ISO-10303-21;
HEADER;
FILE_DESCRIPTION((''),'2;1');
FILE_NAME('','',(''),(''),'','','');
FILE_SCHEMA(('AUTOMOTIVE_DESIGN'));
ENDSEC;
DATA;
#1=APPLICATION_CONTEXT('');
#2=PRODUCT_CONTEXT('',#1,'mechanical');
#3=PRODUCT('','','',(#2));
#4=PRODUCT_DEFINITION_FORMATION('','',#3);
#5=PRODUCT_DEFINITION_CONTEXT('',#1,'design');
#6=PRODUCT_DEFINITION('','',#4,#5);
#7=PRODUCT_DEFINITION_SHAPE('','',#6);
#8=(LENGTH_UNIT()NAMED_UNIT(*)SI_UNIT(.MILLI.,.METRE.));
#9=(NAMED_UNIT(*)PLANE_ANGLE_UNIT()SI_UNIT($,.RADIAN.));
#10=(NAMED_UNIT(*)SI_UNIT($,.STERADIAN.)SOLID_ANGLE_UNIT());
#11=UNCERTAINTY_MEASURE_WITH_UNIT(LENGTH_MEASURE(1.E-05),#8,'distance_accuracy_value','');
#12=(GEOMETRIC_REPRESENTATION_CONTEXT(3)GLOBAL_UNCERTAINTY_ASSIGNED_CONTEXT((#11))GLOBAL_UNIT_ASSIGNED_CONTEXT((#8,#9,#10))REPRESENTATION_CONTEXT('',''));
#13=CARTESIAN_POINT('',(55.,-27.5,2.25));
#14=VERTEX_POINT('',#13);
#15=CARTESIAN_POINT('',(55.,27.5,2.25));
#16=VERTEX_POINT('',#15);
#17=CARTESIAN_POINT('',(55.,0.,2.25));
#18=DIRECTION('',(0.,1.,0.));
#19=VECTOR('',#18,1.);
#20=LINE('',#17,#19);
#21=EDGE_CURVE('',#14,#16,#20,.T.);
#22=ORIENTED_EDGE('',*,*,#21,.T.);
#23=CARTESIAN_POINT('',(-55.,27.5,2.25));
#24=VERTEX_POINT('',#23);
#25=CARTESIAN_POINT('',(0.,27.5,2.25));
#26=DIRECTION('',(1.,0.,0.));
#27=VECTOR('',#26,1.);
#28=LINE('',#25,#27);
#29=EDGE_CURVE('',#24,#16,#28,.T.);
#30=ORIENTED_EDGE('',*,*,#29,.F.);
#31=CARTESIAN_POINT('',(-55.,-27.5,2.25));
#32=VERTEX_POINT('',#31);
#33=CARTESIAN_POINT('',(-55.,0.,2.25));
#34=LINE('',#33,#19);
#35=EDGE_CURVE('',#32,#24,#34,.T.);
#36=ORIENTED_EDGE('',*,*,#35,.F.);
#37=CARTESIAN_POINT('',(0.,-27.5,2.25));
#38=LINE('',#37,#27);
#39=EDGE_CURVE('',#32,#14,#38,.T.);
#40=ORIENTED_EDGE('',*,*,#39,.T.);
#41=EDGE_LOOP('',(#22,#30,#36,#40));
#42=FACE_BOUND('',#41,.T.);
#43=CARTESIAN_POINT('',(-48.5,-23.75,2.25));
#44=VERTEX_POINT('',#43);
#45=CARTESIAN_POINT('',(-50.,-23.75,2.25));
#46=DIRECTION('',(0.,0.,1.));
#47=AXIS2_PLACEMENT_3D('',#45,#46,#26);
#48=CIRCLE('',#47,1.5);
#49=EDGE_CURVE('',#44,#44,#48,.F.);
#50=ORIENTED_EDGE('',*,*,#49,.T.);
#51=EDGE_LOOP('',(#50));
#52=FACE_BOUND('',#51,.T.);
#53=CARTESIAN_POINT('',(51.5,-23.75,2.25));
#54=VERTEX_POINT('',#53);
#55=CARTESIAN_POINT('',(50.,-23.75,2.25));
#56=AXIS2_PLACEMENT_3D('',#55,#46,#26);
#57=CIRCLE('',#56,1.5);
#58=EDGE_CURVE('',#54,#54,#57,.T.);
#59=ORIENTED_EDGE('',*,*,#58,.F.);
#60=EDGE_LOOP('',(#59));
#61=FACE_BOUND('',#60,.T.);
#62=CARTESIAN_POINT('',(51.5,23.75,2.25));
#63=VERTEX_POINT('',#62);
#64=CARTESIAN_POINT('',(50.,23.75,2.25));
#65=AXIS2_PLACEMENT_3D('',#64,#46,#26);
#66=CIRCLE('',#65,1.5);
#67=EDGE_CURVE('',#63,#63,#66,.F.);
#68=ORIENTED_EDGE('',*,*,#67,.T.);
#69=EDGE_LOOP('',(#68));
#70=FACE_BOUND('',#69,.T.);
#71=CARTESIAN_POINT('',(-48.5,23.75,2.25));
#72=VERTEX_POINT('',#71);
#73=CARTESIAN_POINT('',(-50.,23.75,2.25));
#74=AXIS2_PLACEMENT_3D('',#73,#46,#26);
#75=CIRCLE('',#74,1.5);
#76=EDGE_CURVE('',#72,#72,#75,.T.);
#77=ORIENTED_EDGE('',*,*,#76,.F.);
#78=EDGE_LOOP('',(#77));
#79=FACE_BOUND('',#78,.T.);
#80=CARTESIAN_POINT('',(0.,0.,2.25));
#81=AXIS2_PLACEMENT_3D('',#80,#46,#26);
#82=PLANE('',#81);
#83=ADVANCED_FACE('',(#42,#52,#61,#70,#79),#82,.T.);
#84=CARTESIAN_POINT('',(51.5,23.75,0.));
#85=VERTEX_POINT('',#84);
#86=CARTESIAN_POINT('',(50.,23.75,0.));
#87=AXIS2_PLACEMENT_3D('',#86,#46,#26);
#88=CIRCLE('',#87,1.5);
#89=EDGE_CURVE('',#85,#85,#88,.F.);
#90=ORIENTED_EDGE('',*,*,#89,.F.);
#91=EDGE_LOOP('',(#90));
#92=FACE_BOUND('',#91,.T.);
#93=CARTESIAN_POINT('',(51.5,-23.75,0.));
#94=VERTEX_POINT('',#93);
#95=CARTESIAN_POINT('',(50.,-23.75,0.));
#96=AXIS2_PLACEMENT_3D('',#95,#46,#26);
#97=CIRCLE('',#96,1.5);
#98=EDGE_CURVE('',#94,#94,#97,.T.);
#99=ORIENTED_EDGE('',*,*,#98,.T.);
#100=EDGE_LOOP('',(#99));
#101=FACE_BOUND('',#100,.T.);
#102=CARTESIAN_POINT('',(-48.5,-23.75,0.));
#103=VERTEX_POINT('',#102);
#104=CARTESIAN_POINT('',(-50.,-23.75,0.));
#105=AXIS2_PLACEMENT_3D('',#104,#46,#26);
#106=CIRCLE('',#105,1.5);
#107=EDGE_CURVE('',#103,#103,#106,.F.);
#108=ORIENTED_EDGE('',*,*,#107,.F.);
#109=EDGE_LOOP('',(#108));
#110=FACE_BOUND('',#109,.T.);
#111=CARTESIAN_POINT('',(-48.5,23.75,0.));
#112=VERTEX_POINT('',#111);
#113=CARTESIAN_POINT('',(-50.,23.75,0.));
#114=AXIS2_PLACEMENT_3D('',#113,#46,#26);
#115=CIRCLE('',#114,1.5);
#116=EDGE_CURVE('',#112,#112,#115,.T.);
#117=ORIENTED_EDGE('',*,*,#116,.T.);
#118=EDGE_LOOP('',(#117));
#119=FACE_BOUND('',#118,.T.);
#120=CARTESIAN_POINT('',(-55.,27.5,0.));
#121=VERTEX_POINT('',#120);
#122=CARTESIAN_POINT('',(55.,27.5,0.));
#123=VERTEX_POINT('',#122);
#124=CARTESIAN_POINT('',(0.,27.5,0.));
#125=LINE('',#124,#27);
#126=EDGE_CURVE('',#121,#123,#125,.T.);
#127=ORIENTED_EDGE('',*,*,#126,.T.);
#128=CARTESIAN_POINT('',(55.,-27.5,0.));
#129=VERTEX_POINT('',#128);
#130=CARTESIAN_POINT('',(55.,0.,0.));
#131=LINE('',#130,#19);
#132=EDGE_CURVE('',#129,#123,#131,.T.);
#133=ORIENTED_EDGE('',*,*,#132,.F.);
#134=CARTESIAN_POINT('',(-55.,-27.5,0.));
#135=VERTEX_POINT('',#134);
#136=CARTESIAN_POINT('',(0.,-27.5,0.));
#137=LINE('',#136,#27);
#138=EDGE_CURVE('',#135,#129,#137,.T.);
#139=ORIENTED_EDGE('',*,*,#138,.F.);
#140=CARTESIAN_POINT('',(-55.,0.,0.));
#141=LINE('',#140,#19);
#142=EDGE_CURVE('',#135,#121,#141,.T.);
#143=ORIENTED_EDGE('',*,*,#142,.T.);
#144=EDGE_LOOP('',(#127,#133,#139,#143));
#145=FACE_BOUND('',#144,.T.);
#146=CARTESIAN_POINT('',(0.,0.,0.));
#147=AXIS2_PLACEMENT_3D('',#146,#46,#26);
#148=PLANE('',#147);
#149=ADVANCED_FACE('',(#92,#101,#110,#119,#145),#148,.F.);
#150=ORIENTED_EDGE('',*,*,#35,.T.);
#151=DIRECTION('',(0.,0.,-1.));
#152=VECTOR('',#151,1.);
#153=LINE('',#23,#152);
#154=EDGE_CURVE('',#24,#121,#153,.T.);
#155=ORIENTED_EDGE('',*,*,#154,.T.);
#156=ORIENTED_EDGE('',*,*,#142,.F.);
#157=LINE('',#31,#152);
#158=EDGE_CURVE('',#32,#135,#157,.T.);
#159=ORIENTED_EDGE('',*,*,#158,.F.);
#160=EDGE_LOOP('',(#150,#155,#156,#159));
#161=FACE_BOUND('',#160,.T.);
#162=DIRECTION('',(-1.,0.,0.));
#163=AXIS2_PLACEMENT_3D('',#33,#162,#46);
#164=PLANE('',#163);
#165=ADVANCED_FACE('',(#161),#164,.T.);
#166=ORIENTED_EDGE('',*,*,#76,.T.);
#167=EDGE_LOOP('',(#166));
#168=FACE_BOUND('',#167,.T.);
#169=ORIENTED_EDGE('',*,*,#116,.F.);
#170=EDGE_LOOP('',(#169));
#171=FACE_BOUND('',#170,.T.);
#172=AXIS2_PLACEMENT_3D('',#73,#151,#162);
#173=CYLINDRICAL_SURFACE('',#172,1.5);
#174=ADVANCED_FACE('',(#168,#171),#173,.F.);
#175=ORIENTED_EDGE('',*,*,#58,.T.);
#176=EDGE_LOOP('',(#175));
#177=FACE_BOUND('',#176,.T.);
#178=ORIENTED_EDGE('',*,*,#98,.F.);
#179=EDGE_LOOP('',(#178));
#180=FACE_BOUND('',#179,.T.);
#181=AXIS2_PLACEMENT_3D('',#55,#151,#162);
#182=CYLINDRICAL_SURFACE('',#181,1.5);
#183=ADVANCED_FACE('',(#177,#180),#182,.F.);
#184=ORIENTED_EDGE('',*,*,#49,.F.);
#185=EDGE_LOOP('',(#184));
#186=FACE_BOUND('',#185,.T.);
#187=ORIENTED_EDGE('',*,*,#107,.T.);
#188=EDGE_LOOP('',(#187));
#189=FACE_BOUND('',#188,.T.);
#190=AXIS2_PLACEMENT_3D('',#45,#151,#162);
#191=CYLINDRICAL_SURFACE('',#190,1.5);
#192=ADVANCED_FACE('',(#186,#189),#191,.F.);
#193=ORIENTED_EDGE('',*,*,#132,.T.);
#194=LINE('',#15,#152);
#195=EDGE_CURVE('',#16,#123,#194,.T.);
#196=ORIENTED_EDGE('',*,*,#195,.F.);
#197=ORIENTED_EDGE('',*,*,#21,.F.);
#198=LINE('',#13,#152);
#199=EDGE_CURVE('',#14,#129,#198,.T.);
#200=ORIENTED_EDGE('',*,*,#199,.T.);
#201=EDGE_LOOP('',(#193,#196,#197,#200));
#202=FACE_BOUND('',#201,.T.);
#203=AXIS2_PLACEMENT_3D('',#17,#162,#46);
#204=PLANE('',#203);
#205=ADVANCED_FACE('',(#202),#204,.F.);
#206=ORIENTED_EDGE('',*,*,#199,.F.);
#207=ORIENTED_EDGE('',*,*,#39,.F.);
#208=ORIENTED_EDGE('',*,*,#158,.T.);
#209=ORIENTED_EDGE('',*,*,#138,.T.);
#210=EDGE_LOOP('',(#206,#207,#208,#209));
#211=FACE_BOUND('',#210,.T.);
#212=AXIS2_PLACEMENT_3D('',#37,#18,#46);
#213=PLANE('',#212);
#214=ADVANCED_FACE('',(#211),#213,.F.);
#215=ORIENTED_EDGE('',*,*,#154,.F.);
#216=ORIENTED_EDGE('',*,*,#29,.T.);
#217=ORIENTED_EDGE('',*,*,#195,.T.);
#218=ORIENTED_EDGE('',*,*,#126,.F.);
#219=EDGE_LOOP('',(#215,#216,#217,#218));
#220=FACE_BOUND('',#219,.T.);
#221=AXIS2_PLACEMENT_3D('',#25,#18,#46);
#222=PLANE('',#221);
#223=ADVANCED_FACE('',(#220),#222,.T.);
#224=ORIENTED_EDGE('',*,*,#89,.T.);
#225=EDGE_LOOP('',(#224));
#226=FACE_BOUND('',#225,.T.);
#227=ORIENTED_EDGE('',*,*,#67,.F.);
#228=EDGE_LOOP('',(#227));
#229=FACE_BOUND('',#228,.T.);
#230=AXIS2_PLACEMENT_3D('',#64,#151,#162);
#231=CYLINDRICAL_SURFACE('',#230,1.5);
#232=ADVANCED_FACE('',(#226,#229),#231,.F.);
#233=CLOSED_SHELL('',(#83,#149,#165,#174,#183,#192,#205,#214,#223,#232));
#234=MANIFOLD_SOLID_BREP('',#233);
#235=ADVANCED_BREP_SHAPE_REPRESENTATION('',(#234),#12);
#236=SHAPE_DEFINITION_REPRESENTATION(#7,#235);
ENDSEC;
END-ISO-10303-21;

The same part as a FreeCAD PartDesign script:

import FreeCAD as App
import Part
import Sketcher


def add_polygon(sketch, points):
    """Adds a closed chain of lines whose ends are joined by coincident constraints."""
    first, n = sketch.GeometryCount, len(points)
    for a, b in zip(points, points[1:] + points[:1]):
        sketch.addGeometry(Part.LineSegment(App.Vector(*a, 0), App.Vector(*b, 0)), False)
    for i in range(n):
        sketch.addConstraint(Sketcher.Constraint("Coincident", first + i, 2, first + (i + 1) % n, 1))

doc = App.newDocument("Part")
body = doc.addObject("PartDesign::Body", "Body")

# Sketch on XY plane
sketch1 = body.newObject("Sketcher::SketchObject", "Sketch")
sketch1.AttachmentSupport = (doc.getObject("XY_Plane"), [""])
sketch1.MapMode = "FlatFace"
add_polygon(sketch1, [(-55, 27.5), (-55, -27.5), (55, -27.5), (55, 27.5)])  # lines 0-3
sketch1.addGeometry(Part.Circle(App.Vector(-50, -23.8, 0), App.Vector(0, 0, 1), 1.5), False)  # 4
sketch1.addGeometry(Part.Circle(App.Vector(50, -23.8, 0), App.Vector(0, 0, 1), 1.5), False)  # 5
sketch1.addGeometry(Part.Circle(App.Vector(-50, 23.8, 0), App.Vector(0, 0, 1), 1.5), False)  # 6
sketch1.addGeometry(Part.Circle(App.Vector(50, 23.8, 0), App.Vector(0, 0, 1), 1.5), False)  # 7
sketch1.addConstraint([
    Sketcher.Constraint("Vertical", 0),
    Sketcher.Constraint("Horizontal", 1),
    Sketcher.Constraint("Vertical", 2),
    Sketcher.Constraint("Horizontal", 3),
    Sketcher.Constraint("Equal", 4, 5),
    Sketcher.Constraint("Equal", 5, 6),
    Sketcher.Constraint("Equal", 6, 7),
    Sketcher.Constraint("Symmetric", 5, 3, 6, 3, -1, 1),
    Sketcher.Constraint("Symmetric", 4, 3, 7, 3, -1, 1),
    Sketcher.Constraint("Symmetric", 0, 2, 2, 2, -1, 1),
    Sketcher.Constraint("Symmetric", 4, 3, 5, 3, -2),
    Sketcher.Constraint("Diameter", 4, 3.0),
    Sketcher.Constraint("DistanceX", 1, 1, 1, 2, 110.0),
    Sketcher.Constraint("DistanceY", 0, 2, 0, 1, 55.0),
    Sketcher.Constraint("DistanceX", 4, 3, -1, 1, 50.0),
    Sketcher.Constraint("DistanceY", 4, 3, 6, 3, 47.5),
])
pad1 = body.newObject("PartDesign::Pad", "Pad")
pad1.Profile = sketch1
pad1.Length = 2.25

doc.recompute()
